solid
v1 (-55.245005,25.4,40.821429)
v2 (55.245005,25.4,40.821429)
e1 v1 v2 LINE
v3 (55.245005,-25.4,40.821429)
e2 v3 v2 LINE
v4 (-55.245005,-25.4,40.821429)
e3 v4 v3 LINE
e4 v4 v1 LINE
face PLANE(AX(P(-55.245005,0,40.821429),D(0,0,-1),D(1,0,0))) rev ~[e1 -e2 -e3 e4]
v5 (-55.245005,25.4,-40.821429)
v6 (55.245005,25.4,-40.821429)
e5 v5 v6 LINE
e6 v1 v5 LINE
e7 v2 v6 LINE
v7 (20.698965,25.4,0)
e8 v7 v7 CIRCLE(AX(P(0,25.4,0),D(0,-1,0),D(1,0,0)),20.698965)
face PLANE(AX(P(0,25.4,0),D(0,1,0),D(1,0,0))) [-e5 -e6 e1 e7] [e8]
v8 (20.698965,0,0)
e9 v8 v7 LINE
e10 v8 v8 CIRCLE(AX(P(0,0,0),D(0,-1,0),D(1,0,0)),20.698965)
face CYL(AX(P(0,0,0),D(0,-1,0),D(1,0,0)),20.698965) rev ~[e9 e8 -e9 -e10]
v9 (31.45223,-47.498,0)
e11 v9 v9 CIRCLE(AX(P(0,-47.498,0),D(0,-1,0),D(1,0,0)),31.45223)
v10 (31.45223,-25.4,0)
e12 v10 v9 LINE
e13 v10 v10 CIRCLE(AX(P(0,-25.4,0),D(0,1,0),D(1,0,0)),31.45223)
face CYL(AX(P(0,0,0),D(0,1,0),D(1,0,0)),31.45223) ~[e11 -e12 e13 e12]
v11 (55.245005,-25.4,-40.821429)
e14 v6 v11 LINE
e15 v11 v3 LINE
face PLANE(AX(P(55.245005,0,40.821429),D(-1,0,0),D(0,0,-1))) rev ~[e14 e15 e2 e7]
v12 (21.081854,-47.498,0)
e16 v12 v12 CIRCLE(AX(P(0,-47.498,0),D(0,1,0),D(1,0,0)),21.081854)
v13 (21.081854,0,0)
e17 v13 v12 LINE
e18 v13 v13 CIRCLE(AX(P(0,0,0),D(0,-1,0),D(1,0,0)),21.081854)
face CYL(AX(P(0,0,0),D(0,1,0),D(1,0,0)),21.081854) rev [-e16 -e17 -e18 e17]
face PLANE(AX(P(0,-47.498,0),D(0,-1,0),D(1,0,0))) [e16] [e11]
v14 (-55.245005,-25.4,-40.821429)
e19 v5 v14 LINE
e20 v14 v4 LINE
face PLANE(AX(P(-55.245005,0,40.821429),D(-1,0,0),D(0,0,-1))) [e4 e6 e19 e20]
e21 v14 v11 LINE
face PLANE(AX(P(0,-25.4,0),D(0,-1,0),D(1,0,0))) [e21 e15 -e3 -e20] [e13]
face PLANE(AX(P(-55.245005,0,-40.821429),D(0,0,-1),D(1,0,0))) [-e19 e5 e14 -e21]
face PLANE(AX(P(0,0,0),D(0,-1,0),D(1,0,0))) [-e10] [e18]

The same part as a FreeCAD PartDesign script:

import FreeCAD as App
import Part
import Sketcher
from FreeCAD import Vector
Q = App.Units.Quantity


def add_polygon(sketch, points):
    """Adds a closed chain of lines whose ends are joined by coincident constraints."""
    first, n = sketch.GeometryCount, len(points)
    for a, b in zip(points, points[1:] + points[:1]):
        sketch.addGeometry(Part.LineSegment(App.Vector(*a, 0), App.Vector(*b, 0)), False)
    for i in range(n):
        sketch.addConstraint(Sketcher.Constraint("Coincident", first + i, 2, first + (i + 1) % n, 1))

doc = App.newDocument("Part")
body = doc.addObject("PartDesign::Body", "Body")

# Sketch on XZ plane
sketch1 = body.newObject("Sketcher::SketchObject", "Sketch")
sketch1.AttachmentSupport = (doc.getObject("XZ_Plane"), [""])
sketch1.MapMode = "FlatFace"
add_polygon(sketch1, [(-55.245005, 40.821429), (-55.245005, -40.821429), (55.245005, -40.821429), (55.245005, 40.821429)])  # lines 0-3
sketch1.addConstraint([
    Sketcher.Constraint("Vertical", 0),
    Sketcher.Constraint("Horizontal", 1),
    Sketcher.Constraint("Vertical", 2),
    Sketcher.Constraint("Horizontal", 3),
    Sketcher.Constraint("Symmetric", 0, 2, 2, 2, -1, 1),
    Sketcher.Constraint("DistanceX", 0, 2, -1, 1, Q("2.1750002 in")),
    Sketcher.Constraint("DistanceY", 0, 2, 0, 1, Q("81.642858 mm")),
])
pad1 = body.newObject("PartDesign::Pad", "Pad")
pad1.Profile = sketch1
pad1.Length = Q("1 in")

# Sketch on XZ plane
sketch2 = body.newObject("Sketcher::SketchObject", "Sketch001")
sketch2.AttachmentSupport = (doc.getObject("XZ_Plane"), [""])
sketch2.MapMode = "FlatFace"
add_polygon(sketch2, [(-55.245005, -40.821429), (-55.245005, 40.821429), (55.245005, 40.821429), (55.245005, -40.821429)])  # lines 0-3
sketch2.addConstraint([
    Sketcher.Constraint("Vertical", 0),
    Sketcher.Constraint("Horizontal", 1),
    Sketcher.Constraint("Vertical", 2),
    Sketcher.Constraint("Horizontal", 3),
    Sketcher.Constraint("Symmetric", 0, 2, 2, 2, -1, 1),
    Sketcher.Constraint("DistanceX", 0, 2, -1, 1, Q("2.1750002 in")),
    Sketcher.Constraint("DistanceY", 0, 1, 0, 2, Q("81.642858 mm")),
])
pad2 = body.newObject("PartDesign::Pad", "Pad001")
pad2.Profile = sketch2
pad2.Length = Q("1 in")
pad2.Reversed = True

# Sketch on XZ plane
sketch3 = body.newObject("Sketcher::SketchObject", "Sketch002")
sketch3.AttachmentSupport = (doc.getObject("XZ_Plane"), [""])
sketch3.MapMode = "FlatFace"
sketch3.addGeometry(Part.Circle(Vector(0, 0, 0), Vector(0, 0, 1), 31.45223), False)
sketch3.addConstraint([
    Sketcher.Constraint("Coincident", 0, 3, -1, 1),
    Sketcher.Constraint("Diameter", 0, Q("62.90446 mm")),
])
pad3 = body.newObject("PartDesign::Pad", "Pad002")
pad3.Profile = sketch3
pad3.Length = Q("1.87 in")

# Sketch on XZ plane
sketch4 = body.newObject("Sketcher::SketchObject", "Sketch003")
sketch4.AttachmentSupport = (doc.getObject("XZ_Plane"), [""])
sketch4.MapMode = "FlatFace"
sketch4.addGeometry(Part.Circle(Vector(0, 0, 0), Vector(0, 0, 1), 21.081854), False)
sketch4.addConstraint([
    Sketcher.Constraint("Coincident", 0, 3, -1, 1),
    Sketcher.Constraint("Diameter", 0, Q("42.163708 mm")),
])
pocket1 = body.newObject("PartDesign::Pocket", "Pocket")
pocket1.Profile = sketch4
pocket1.Length = Q("4.64 in")
pocket1.Reversed = True

# Sketch on XZ plane
sketch5 = body.newObject("Sketcher::SketchObject", "Sketch004")
sketch5.AttachmentSupport = (doc.getObject("XZ_Plane"), [""])
sketch5.MapMode = "FlatFace"
sketch5.addGeometry(Part.Circle(Vector(0, 0, 0), Vector(0, 0, 1), 20.698965), False)
sketch5.addConstraint([
    Sketcher.Constraint("Coincident", 0, 3, -1, 1),
    Sketcher.Constraint("Diameter", 0, Q("41.39793 mm")),
])
pocket2 = body.newObject("PartDesign::Pocket", "Pocket001")
pocket2.Profile = sketch5
pocket2.Length = Q("3.21 in")

doc.recompute()
